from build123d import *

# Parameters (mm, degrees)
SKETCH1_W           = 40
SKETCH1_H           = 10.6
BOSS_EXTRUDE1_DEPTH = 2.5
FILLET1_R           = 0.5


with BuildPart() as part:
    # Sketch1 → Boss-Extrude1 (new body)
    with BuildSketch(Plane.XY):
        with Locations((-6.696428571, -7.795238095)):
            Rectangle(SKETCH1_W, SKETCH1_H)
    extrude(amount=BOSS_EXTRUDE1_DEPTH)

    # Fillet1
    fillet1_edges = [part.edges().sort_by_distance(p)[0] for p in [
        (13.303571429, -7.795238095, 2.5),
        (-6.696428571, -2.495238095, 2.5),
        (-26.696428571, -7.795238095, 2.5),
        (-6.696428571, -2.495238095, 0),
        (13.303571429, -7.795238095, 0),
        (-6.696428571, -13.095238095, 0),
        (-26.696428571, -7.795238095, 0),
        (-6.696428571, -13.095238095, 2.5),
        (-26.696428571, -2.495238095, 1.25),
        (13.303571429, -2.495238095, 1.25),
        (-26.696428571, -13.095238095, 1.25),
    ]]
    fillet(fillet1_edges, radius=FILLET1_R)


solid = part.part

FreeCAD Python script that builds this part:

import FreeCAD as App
import Part
import Sketcher

V = App.Vector


def edges_at(feature, points):
    """Names of the edges that pass closest to the given points."""
    edges = feature.Shape.Edges
    near = lambda p: min(range(len(edges)), key=lambda i: edges[i].distToShape(Part.Vertex(*p))[0])
    return sorted({f"Edge{near(p) + 1}" for p in points})

doc = App.newDocument("Part")
body = doc.addObject("PartDesign::Body", "Body")

sketch1 = doc.addObject("Sketcher::SketchObject", "Sketch")
body.addObject(sketch1)
sketch1.AttachmentSupport = (doc.XY_Plane, [""])
sketch1.MapMode = "FlatFace"
sketch1.addGeometry(Part.LineSegment(V(-27, -2, 0), V(-27, -13, 0)), False)
sketch1.addGeometry(Part.LineSegment(V(-27, -13, 0), V(13, -13, 0)), False)
sketch1.addGeometry(Part.LineSegment(V(13, -13, 0), V(13, -2, 0)), False)
sketch1.addGeometry(Part.LineSegment(V(13, -2, 0), V(-27, -2, 0)), False)
sketch1.addConstraint(Sketcher.Constraint("Coincident", 0, 2, 1, 1))
sketch1.addConstraint(Sketcher.Constraint("Coincident", 1, 2, 2, 1))
sketch1.addConstraint(Sketcher.Constraint("Coincident", 2, 2, 3, 1))
sketch1.addConstraint(Sketcher.Constraint("Coincident", 3, 2, 0, 1))
sketch1.addConstraint(Sketcher.Constraint("Vertical", 0))
sketch1.addConstraint(Sketcher.Constraint("Horizontal", 1))
sketch1.addConstraint(Sketcher.Constraint("Vertical", 2))
sketch1.addConstraint(Sketcher.Constraint("Horizontal", 3))
sketch1.addConstraint(Sketcher.Constraint("DistanceX", 1, 1, 1, 2, 40.0))
sketch1.addConstraint(Sketcher.Constraint("DistanceY", 0, 2, 0, 1, 10.6))
sketch1.addConstraint(Sketcher.Constraint("DistanceX", 0, 2, -1, 1, 26.696429))
sketch1.addConstraint(Sketcher.Constraint("DistanceY", 0, 2, -1, 1, 13.095238))
pad1 = doc.addObject("PartDesign::Pad", "Pad")
body.addObject(pad1)
pad1.Profile = sketch1
pad1.Length = 2.5
doc.recompute()

fillet = doc.addObject("PartDesign::Fillet", "Fillet")
body.addObject(fillet)
fillet.Base = (pad1, edges_at(pad1, [
    (13.304, -7.795, 2.5),
    (-6.696, -2.495, 2.5),
    (-26.696, -7.795, 2.5),
    (-6.696, -2.495, 0),
    (13.304, -7.795, 0),
    (-6.696, -13.095, 0),
    (-26.696, -7.795, 0),
    (-6.696, -13.095, 2.5),
    (-26.696, -2.495, 1.25),
    (13.304, -2.495, 1.25),
    (-26.696, -13.095, 1.25),
]))
fillet.Radius = 0.5

doc.recompute()
